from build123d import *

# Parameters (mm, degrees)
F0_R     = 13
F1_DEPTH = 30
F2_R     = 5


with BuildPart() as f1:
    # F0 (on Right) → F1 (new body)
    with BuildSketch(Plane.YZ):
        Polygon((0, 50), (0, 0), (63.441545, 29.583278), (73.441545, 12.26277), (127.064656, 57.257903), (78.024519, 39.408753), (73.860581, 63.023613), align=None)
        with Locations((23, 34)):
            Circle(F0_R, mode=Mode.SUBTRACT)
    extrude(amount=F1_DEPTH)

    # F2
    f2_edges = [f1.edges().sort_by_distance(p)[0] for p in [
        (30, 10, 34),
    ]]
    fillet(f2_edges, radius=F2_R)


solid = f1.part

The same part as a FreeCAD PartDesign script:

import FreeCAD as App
import Part
import Sketcher
from FreeCAD import Vector
Q = App.Units.Quantity


def edges_at(feature, points):
    """Names of the edges that pass closest to the given points."""
    edges = feature.Shape.Edges
    near = lambda p: min(range(len(edges)), key=lambda i: edges[i].distToShape(Part.Vertex(*p))[0])
    return sorted({f"Edge{near(p) + 1}" for p in points})

doc = App.newDocument("Part")
body = doc.addObject("PartDesign::Body", "Body")

# Sketch on YZ plane
sketch1 = body.newObject("Sketcher::SketchObject", "Sketch")
sketch1.AttachmentSupport = (doc.getObject("YZ_Plane"), [""])
sketch1.MapMode = "FlatFace"
sketch1.addGeometry([
    Part.LineSegment(Vector(0, 50, 0), Vector(0, 0, 0)),  # 0
    Part.LineSegment(Vector(0, 0, 0), Vector(63, 30, 0)),  # 1
    Part.LineSegment(Vector(63, 30, 0), Vector(73, 12, 0)),  # 2
    Part.LineSegment(Vector(73, 12, 0), Vector(127, 57, 0)),  # 3
    Part.LineSegment(Vector(127, 57, 0), Vector(78, 39, 0)),  # 4
    Part.LineSegment(Vector(78, 39, 0), Vector(74, 63, 0)),  # 5
    Part.LineSegment(Vector(74, 63, 0), Vector(0, 50, 0)),  # 6
    Part.Circle(Vector(23, 34, 0), Vector(0, 0, 1), 13),  # 7
], False)
sketch1.addConstraint([
    Sketcher.Constraint("Coincident", 0, 2, 1, 1),
    Sketcher.Constraint("Coincident", 1, 2, 2, 1),
    Sketcher.Constraint("Coincident", 2, 2, 3, 1),
    Sketcher.Constraint("Coincident", 3, 2, 4, 1),
    Sketcher.Constraint("Coincident", 4, 2, 5, 1),
    Sketcher.Constraint("Coincident", 5, 2, 6, 1),
    Sketcher.Constraint("Coincident", 6, 2, 0, 1),
    Sketcher.Constraint("Vertical", 0),
    Sketcher.Constraint("Coincident", 0, 2, -1, 1),
    Sketcher.Constraint("Perpendicular", 5, 6),
    Sketcher.Constraint("Equal", 1, 3),
    Sketcher.Constraint("Diameter", 7, 26.0),
    Sketcher.Constraint("DistanceY", 0, 2, 0, 1, 50.0),
    Sketcher.Constraint("Angle", 1, Q("25 deg")),
    Sketcher.Constraint("Angle", 2, Q("-60 deg")),
    Sketcher.Constraint("Angle", 3, Q("40 deg")),
    Sketcher.Constraint("Angle", 4, Q("-160 deg")),
    Sketcher.Constraint("Angle", 5, Q("100.000002 deg")),
    Sketcher.Constraint("Distance", 1, 70.0),
    Sketcher.Constraint("Distance", 2, 20.0),
    Sketcher.Constraint("Distance", 6, 74.999999),
    Sketcher.Constraint("DistanceX", -1, 1, 7, 3, 23.0),
    Sketcher.Constraint("DistanceY", -1, 1, 7, 3, 34.0),
])
pad1 = body.newObject("PartDesign::Pad", "Pad")
pad1.Profile = sketch1
pad1.Length = 30
doc.recompute()

fillet = body.newObject("PartDesign::Fillet", "Fillet")
fillet.Base = (pad1, edges_at(pad1, [(30, 10, 34)]))
fillet.Radius = 5

doc.recompute()
